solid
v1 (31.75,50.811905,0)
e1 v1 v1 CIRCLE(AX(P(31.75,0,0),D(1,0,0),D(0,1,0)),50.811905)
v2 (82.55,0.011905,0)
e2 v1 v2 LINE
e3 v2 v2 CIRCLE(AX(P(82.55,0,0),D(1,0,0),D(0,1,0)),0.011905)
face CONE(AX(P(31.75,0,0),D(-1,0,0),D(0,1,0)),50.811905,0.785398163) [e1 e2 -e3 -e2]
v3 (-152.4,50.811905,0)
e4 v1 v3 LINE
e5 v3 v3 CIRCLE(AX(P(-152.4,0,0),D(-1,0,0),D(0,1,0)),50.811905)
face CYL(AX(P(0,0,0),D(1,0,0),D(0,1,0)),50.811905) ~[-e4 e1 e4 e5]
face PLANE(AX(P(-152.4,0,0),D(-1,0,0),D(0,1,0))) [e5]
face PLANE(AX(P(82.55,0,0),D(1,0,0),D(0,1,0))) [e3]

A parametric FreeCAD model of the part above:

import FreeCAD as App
import Part
import Sketcher

V = App.Vector
Q = App.Units.Quantity


def edges_at(feature, points):
    """Names of the edges that pass closest to the given points."""
    edges = feature.Shape.Edges
    near = lambda p: min(range(len(edges)), key=lambda i: edges[i].distToShape(Part.Vertex(*p))[0])
    return sorted({f"Edge{near(p) + 1}" for p in points})

doc = App.newDocument("Part")
params = doc.addObject("Spreadsheet::Sheet", "Params")
for row, (alias, value) in enumerate([
    ("pad1_length", "3.25 in"),
    ("chamfer_size", "2 in"),
    ("pad2_length", "6 in"),
], start=1):
    params.set(f"A{row}", alias)
    params.set(f"B{row}", "=" + value)
    params.setAlias(f"B{row}", alias)

body = doc.addObject("PartDesign::Body", "Body")

# Sketch on YZ plane
sketch1 = body.newObject("Sketcher::SketchObject", "Sketch")
sketch1.AttachmentSupport = (doc.getObject("YZ_Plane"), [""])
sketch1.MapMode = "FlatFace"
sketch1.addGeometry(Part.Circle(V(0, 0, 0), V(0, 0, 1), 51), False)
sketch1.addConstraint(Sketcher.Constraint("Coincident", 0, 3, -1, 1))
sketch1.addConstraint(Sketcher.Constraint("Diameter", 0, Q("101.62381 mm")))
pad1 = body.newObject("PartDesign::Pad", "Pad")
pad1.Profile = sketch1
pad1.setExpression("Length", "Params.pad1_length")
doc.recompute()

chamfer = body.newObject("PartDesign::Chamfer", "Chamfer")
chamfer.Base = (pad1, edges_at(pad1, [(82.55, -50.812, 0)]))
chamfer.setExpression("Size", "Params.chamfer_size")

# Sketch on YZ plane
sketch2 = body.newObject("Sketcher::SketchObject", "Sketch001")
sketch2.AttachmentSupport = (doc.getObject("YZ_Plane"), [""])
sketch2.MapMode = "FlatFace"
sketch2.addGeometry(Part.Circle(V(0, 0, 0), V(0, 0, 1), 51), False)
sketch2.addConstraint(Sketcher.Constraint("Coincident", 0, 3, -1, 1))
sketch2.addConstraint(Sketcher.Constraint("Diameter", 0, Q("101.62381 mm")))
pad2 = body.newObject("PartDesign::Pad", "Pad001")
pad2.Profile = sketch2
pad2.setExpression("Length", "Params.pad2_length")
pad2.Reversed = True

doc.recompute()
